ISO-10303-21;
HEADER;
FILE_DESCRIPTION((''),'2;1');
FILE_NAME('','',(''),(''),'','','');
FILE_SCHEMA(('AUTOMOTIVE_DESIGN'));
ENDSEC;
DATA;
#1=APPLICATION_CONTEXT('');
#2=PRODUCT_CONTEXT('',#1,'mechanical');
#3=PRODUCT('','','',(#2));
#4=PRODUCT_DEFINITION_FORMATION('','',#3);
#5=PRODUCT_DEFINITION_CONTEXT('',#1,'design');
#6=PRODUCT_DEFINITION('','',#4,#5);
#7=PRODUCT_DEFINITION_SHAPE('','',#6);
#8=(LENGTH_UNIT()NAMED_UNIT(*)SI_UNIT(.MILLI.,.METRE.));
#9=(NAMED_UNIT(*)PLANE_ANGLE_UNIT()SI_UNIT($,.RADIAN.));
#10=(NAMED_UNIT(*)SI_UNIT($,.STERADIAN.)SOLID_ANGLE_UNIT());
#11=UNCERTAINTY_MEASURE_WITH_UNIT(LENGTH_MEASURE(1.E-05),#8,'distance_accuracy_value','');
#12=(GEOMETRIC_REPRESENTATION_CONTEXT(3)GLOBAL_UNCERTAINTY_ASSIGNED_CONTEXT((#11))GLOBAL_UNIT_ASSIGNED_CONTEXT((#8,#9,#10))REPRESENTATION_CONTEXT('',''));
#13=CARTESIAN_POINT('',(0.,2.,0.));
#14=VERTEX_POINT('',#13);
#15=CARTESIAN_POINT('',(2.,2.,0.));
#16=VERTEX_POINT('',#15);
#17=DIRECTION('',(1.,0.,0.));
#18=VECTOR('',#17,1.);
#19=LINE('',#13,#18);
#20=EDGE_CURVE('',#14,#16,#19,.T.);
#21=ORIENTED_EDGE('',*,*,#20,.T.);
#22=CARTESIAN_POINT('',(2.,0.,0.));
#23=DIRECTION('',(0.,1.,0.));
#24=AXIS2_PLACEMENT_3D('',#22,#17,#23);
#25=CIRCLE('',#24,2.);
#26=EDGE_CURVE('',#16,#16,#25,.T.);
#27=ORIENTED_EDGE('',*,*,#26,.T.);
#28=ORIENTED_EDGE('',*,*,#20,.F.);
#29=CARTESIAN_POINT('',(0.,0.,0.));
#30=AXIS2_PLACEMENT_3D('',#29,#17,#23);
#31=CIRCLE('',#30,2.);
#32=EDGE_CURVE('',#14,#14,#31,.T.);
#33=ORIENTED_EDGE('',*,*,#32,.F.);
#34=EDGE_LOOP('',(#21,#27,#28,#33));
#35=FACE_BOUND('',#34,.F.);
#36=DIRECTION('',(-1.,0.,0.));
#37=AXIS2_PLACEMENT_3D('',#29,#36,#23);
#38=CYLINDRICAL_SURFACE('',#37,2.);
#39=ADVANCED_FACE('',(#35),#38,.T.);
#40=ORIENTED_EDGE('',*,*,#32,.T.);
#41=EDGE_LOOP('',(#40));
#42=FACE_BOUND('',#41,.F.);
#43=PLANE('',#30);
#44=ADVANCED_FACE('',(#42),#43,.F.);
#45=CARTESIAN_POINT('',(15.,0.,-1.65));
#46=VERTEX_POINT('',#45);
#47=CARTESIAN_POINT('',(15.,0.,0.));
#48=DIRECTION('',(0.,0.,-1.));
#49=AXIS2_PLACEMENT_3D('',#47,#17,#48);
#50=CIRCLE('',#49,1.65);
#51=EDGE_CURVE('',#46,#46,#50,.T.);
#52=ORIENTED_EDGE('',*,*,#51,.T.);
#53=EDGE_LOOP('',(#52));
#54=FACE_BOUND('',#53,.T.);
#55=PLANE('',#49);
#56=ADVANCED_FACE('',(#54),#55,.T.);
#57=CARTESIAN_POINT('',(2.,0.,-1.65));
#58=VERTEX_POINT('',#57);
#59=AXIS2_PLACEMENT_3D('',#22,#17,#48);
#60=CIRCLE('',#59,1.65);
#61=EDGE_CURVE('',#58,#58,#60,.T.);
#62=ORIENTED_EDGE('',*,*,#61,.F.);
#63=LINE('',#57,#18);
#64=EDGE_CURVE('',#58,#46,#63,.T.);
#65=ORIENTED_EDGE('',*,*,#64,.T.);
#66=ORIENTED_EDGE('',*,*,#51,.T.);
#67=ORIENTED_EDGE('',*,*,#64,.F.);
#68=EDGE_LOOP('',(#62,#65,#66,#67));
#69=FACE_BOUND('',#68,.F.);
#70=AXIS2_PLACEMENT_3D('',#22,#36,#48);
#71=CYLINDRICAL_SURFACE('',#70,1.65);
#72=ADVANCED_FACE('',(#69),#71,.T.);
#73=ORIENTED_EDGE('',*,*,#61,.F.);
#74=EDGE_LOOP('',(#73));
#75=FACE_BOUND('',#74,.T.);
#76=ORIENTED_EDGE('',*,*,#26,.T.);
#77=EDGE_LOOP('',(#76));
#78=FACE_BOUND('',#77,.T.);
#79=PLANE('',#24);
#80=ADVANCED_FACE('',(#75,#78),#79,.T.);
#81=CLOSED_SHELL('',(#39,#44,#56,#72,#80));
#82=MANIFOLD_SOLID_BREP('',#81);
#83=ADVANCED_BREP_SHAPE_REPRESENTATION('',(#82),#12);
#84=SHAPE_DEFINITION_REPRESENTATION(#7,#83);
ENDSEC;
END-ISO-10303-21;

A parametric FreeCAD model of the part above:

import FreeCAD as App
import Part
import Sketcher

V = App.Vector
Q = App.Units.Quantity

doc = App.newDocument("Part")
params = doc.addObject("Spreadsheet::Sheet", "Params")
for row, (alias, value) in enumerate([
    ("sketch1_diameter", "4 mm"),
    ("pad1_length", "2 mm"),
    ("sketch2_diameter", "3.3 mm"),
    ("pad2_length", "13 mm"),
], start=1):
    params.set(f"A{row}", alias)
    params.set(f"B{row}", "=" + value)
    params.setAlias(f"B{row}", alias)

body = doc.addObject("PartDesign::Body", "Body")

sketch1 = body.newObject("Sketcher::SketchObject", "Sketch")
sketch1.AttachmentSupport = (doc.getObject("YZ_Plane"), [""])
sketch1.MapMode = "FlatFace"
sketch1.addGeometry(Part.Circle(V(0, 0, 0), V(0, 0, 1), 2), False)
sketch1.addConstraint(Sketcher.Constraint("Coincident", 0, 3, -1, 1))
sketch1.addConstraint(Sketcher.Constraint("Diameter", 0, Q("4 mm")))
sketch1.setExpression("Constraints[1]", "Params.sketch1_diameter")
pad1 = body.newObject("PartDesign::Pad", "Pad")
pad1.Profile = sketch1
pad1.setExpression("Length", "Params.pad1_length")

sketch2 = body.newObject("Sketcher::SketchObject", "Sketch001")
sketch2.AttachmentSupport = (doc.getObject("YZ_Plane"), [""])
sketch2.MapMode = "FlatFace"
sketch2.AttachmentOffset = App.Placement(V(0, 0, 2), App.Rotation())
sketch2.addGeometry(Part.Circle(V(0, 0, 0), V(0, 0, 1), 1.6), False)
sketch2.addConstraint(Sketcher.Constraint("Coincident", 0, 3, -1, 1))
sketch2.addConstraint(Sketcher.Constraint("Diameter", 0, Q("3.3 mm")))
sketch2.setExpression("Constraints[1]", "Params.sketch2_diameter")
pad2 = body.newObject("PartDesign::Pad", "Pad001")
pad2.Profile = sketch2
pad2.setExpression("Length", "Params.pad2_length")

doc.recompute()
